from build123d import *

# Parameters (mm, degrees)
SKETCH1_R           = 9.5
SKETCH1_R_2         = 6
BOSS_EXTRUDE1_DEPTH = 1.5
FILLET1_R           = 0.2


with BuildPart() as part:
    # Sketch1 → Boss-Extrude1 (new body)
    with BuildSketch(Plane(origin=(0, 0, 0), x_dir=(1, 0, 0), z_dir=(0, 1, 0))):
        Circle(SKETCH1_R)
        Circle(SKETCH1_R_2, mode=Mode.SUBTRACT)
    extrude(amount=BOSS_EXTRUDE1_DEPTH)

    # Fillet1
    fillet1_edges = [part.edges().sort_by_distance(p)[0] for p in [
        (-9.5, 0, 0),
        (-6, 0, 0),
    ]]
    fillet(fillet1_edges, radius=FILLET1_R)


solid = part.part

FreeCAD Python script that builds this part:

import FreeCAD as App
import Part
import Sketcher


def edges_at(feature, points):
    """Names of the edges that pass closest to the given points."""
    edges = feature.Shape.Edges
    near = lambda p: min(range(len(edges)), key=lambda i: edges[i].distToShape(Part.Vertex(*p))[0])
    return sorted({f"Edge{near(p) + 1}" for p in points})

doc = App.newDocument("Part")
params = doc.addObject("Spreadsheet::Sheet", "Params")
for row, (alias, value) in enumerate([
    ("sketch1_diameter", "19 mm"),
    ("sketch1_diameter2", "12 mm"),
    ("pad1_length", "1.5 mm"),
    ("fillet_radius", "0.2 mm"),
], start=1):
    params.set(f"A{row}", alias)
    params.set(f"B{row}", "=" + value)
    params.setAlias(f"B{row}", alias)

body = doc.addObject("PartDesign::Body", "Body")

# Sketch on XZ plane
sketch1 = body.newObject("Sketcher::SketchObject", "Sketch")
sketch1.AttachmentSupport = (doc.getObject("XZ_Plane"), [""])
sketch1.MapMode = "FlatFace"
sketch1.addGeometry([
    Part.Circle(App.Vector(0, 0, 0), App.Vector(0, 0, 1), 10),
    Part.Circle(App.Vector(0, 0, 0), App.Vector(0, 0, 1), 6),
], False)
sketch1.addConstraint([
    Sketcher.Constraint("Coincident", 0, 3, -1, 1),
    Sketcher.Constraint("Coincident", 1, 3, -1, 1),
    Sketcher.Constraint("Diameter", 0, 19.0),
    Sketcher.Constraint("Diameter", 1, 12.0),
])
sketch1.setExpression("Constraints[2]", "Params.sketch1_diameter")
sketch1.setExpression("Constraints[3]", "Params.sketch1_diameter2")
pad1 = body.newObject("PartDesign::Pad", "Pad")
pad1.Profile = sketch1
pad1.setExpression("Length", "Params.pad1_length")
pad1.Reversed = True
doc.recompute()

fillet = body.newObject("PartDesign::Fillet", "Fillet")
fillet.Base = (pad1, edges_at(pad1, [(-9.5, 0, 0), (-6, 0, 0)]))
fillet.setExpression("Radius", "Params.fillet_radius")

doc.recompute()
